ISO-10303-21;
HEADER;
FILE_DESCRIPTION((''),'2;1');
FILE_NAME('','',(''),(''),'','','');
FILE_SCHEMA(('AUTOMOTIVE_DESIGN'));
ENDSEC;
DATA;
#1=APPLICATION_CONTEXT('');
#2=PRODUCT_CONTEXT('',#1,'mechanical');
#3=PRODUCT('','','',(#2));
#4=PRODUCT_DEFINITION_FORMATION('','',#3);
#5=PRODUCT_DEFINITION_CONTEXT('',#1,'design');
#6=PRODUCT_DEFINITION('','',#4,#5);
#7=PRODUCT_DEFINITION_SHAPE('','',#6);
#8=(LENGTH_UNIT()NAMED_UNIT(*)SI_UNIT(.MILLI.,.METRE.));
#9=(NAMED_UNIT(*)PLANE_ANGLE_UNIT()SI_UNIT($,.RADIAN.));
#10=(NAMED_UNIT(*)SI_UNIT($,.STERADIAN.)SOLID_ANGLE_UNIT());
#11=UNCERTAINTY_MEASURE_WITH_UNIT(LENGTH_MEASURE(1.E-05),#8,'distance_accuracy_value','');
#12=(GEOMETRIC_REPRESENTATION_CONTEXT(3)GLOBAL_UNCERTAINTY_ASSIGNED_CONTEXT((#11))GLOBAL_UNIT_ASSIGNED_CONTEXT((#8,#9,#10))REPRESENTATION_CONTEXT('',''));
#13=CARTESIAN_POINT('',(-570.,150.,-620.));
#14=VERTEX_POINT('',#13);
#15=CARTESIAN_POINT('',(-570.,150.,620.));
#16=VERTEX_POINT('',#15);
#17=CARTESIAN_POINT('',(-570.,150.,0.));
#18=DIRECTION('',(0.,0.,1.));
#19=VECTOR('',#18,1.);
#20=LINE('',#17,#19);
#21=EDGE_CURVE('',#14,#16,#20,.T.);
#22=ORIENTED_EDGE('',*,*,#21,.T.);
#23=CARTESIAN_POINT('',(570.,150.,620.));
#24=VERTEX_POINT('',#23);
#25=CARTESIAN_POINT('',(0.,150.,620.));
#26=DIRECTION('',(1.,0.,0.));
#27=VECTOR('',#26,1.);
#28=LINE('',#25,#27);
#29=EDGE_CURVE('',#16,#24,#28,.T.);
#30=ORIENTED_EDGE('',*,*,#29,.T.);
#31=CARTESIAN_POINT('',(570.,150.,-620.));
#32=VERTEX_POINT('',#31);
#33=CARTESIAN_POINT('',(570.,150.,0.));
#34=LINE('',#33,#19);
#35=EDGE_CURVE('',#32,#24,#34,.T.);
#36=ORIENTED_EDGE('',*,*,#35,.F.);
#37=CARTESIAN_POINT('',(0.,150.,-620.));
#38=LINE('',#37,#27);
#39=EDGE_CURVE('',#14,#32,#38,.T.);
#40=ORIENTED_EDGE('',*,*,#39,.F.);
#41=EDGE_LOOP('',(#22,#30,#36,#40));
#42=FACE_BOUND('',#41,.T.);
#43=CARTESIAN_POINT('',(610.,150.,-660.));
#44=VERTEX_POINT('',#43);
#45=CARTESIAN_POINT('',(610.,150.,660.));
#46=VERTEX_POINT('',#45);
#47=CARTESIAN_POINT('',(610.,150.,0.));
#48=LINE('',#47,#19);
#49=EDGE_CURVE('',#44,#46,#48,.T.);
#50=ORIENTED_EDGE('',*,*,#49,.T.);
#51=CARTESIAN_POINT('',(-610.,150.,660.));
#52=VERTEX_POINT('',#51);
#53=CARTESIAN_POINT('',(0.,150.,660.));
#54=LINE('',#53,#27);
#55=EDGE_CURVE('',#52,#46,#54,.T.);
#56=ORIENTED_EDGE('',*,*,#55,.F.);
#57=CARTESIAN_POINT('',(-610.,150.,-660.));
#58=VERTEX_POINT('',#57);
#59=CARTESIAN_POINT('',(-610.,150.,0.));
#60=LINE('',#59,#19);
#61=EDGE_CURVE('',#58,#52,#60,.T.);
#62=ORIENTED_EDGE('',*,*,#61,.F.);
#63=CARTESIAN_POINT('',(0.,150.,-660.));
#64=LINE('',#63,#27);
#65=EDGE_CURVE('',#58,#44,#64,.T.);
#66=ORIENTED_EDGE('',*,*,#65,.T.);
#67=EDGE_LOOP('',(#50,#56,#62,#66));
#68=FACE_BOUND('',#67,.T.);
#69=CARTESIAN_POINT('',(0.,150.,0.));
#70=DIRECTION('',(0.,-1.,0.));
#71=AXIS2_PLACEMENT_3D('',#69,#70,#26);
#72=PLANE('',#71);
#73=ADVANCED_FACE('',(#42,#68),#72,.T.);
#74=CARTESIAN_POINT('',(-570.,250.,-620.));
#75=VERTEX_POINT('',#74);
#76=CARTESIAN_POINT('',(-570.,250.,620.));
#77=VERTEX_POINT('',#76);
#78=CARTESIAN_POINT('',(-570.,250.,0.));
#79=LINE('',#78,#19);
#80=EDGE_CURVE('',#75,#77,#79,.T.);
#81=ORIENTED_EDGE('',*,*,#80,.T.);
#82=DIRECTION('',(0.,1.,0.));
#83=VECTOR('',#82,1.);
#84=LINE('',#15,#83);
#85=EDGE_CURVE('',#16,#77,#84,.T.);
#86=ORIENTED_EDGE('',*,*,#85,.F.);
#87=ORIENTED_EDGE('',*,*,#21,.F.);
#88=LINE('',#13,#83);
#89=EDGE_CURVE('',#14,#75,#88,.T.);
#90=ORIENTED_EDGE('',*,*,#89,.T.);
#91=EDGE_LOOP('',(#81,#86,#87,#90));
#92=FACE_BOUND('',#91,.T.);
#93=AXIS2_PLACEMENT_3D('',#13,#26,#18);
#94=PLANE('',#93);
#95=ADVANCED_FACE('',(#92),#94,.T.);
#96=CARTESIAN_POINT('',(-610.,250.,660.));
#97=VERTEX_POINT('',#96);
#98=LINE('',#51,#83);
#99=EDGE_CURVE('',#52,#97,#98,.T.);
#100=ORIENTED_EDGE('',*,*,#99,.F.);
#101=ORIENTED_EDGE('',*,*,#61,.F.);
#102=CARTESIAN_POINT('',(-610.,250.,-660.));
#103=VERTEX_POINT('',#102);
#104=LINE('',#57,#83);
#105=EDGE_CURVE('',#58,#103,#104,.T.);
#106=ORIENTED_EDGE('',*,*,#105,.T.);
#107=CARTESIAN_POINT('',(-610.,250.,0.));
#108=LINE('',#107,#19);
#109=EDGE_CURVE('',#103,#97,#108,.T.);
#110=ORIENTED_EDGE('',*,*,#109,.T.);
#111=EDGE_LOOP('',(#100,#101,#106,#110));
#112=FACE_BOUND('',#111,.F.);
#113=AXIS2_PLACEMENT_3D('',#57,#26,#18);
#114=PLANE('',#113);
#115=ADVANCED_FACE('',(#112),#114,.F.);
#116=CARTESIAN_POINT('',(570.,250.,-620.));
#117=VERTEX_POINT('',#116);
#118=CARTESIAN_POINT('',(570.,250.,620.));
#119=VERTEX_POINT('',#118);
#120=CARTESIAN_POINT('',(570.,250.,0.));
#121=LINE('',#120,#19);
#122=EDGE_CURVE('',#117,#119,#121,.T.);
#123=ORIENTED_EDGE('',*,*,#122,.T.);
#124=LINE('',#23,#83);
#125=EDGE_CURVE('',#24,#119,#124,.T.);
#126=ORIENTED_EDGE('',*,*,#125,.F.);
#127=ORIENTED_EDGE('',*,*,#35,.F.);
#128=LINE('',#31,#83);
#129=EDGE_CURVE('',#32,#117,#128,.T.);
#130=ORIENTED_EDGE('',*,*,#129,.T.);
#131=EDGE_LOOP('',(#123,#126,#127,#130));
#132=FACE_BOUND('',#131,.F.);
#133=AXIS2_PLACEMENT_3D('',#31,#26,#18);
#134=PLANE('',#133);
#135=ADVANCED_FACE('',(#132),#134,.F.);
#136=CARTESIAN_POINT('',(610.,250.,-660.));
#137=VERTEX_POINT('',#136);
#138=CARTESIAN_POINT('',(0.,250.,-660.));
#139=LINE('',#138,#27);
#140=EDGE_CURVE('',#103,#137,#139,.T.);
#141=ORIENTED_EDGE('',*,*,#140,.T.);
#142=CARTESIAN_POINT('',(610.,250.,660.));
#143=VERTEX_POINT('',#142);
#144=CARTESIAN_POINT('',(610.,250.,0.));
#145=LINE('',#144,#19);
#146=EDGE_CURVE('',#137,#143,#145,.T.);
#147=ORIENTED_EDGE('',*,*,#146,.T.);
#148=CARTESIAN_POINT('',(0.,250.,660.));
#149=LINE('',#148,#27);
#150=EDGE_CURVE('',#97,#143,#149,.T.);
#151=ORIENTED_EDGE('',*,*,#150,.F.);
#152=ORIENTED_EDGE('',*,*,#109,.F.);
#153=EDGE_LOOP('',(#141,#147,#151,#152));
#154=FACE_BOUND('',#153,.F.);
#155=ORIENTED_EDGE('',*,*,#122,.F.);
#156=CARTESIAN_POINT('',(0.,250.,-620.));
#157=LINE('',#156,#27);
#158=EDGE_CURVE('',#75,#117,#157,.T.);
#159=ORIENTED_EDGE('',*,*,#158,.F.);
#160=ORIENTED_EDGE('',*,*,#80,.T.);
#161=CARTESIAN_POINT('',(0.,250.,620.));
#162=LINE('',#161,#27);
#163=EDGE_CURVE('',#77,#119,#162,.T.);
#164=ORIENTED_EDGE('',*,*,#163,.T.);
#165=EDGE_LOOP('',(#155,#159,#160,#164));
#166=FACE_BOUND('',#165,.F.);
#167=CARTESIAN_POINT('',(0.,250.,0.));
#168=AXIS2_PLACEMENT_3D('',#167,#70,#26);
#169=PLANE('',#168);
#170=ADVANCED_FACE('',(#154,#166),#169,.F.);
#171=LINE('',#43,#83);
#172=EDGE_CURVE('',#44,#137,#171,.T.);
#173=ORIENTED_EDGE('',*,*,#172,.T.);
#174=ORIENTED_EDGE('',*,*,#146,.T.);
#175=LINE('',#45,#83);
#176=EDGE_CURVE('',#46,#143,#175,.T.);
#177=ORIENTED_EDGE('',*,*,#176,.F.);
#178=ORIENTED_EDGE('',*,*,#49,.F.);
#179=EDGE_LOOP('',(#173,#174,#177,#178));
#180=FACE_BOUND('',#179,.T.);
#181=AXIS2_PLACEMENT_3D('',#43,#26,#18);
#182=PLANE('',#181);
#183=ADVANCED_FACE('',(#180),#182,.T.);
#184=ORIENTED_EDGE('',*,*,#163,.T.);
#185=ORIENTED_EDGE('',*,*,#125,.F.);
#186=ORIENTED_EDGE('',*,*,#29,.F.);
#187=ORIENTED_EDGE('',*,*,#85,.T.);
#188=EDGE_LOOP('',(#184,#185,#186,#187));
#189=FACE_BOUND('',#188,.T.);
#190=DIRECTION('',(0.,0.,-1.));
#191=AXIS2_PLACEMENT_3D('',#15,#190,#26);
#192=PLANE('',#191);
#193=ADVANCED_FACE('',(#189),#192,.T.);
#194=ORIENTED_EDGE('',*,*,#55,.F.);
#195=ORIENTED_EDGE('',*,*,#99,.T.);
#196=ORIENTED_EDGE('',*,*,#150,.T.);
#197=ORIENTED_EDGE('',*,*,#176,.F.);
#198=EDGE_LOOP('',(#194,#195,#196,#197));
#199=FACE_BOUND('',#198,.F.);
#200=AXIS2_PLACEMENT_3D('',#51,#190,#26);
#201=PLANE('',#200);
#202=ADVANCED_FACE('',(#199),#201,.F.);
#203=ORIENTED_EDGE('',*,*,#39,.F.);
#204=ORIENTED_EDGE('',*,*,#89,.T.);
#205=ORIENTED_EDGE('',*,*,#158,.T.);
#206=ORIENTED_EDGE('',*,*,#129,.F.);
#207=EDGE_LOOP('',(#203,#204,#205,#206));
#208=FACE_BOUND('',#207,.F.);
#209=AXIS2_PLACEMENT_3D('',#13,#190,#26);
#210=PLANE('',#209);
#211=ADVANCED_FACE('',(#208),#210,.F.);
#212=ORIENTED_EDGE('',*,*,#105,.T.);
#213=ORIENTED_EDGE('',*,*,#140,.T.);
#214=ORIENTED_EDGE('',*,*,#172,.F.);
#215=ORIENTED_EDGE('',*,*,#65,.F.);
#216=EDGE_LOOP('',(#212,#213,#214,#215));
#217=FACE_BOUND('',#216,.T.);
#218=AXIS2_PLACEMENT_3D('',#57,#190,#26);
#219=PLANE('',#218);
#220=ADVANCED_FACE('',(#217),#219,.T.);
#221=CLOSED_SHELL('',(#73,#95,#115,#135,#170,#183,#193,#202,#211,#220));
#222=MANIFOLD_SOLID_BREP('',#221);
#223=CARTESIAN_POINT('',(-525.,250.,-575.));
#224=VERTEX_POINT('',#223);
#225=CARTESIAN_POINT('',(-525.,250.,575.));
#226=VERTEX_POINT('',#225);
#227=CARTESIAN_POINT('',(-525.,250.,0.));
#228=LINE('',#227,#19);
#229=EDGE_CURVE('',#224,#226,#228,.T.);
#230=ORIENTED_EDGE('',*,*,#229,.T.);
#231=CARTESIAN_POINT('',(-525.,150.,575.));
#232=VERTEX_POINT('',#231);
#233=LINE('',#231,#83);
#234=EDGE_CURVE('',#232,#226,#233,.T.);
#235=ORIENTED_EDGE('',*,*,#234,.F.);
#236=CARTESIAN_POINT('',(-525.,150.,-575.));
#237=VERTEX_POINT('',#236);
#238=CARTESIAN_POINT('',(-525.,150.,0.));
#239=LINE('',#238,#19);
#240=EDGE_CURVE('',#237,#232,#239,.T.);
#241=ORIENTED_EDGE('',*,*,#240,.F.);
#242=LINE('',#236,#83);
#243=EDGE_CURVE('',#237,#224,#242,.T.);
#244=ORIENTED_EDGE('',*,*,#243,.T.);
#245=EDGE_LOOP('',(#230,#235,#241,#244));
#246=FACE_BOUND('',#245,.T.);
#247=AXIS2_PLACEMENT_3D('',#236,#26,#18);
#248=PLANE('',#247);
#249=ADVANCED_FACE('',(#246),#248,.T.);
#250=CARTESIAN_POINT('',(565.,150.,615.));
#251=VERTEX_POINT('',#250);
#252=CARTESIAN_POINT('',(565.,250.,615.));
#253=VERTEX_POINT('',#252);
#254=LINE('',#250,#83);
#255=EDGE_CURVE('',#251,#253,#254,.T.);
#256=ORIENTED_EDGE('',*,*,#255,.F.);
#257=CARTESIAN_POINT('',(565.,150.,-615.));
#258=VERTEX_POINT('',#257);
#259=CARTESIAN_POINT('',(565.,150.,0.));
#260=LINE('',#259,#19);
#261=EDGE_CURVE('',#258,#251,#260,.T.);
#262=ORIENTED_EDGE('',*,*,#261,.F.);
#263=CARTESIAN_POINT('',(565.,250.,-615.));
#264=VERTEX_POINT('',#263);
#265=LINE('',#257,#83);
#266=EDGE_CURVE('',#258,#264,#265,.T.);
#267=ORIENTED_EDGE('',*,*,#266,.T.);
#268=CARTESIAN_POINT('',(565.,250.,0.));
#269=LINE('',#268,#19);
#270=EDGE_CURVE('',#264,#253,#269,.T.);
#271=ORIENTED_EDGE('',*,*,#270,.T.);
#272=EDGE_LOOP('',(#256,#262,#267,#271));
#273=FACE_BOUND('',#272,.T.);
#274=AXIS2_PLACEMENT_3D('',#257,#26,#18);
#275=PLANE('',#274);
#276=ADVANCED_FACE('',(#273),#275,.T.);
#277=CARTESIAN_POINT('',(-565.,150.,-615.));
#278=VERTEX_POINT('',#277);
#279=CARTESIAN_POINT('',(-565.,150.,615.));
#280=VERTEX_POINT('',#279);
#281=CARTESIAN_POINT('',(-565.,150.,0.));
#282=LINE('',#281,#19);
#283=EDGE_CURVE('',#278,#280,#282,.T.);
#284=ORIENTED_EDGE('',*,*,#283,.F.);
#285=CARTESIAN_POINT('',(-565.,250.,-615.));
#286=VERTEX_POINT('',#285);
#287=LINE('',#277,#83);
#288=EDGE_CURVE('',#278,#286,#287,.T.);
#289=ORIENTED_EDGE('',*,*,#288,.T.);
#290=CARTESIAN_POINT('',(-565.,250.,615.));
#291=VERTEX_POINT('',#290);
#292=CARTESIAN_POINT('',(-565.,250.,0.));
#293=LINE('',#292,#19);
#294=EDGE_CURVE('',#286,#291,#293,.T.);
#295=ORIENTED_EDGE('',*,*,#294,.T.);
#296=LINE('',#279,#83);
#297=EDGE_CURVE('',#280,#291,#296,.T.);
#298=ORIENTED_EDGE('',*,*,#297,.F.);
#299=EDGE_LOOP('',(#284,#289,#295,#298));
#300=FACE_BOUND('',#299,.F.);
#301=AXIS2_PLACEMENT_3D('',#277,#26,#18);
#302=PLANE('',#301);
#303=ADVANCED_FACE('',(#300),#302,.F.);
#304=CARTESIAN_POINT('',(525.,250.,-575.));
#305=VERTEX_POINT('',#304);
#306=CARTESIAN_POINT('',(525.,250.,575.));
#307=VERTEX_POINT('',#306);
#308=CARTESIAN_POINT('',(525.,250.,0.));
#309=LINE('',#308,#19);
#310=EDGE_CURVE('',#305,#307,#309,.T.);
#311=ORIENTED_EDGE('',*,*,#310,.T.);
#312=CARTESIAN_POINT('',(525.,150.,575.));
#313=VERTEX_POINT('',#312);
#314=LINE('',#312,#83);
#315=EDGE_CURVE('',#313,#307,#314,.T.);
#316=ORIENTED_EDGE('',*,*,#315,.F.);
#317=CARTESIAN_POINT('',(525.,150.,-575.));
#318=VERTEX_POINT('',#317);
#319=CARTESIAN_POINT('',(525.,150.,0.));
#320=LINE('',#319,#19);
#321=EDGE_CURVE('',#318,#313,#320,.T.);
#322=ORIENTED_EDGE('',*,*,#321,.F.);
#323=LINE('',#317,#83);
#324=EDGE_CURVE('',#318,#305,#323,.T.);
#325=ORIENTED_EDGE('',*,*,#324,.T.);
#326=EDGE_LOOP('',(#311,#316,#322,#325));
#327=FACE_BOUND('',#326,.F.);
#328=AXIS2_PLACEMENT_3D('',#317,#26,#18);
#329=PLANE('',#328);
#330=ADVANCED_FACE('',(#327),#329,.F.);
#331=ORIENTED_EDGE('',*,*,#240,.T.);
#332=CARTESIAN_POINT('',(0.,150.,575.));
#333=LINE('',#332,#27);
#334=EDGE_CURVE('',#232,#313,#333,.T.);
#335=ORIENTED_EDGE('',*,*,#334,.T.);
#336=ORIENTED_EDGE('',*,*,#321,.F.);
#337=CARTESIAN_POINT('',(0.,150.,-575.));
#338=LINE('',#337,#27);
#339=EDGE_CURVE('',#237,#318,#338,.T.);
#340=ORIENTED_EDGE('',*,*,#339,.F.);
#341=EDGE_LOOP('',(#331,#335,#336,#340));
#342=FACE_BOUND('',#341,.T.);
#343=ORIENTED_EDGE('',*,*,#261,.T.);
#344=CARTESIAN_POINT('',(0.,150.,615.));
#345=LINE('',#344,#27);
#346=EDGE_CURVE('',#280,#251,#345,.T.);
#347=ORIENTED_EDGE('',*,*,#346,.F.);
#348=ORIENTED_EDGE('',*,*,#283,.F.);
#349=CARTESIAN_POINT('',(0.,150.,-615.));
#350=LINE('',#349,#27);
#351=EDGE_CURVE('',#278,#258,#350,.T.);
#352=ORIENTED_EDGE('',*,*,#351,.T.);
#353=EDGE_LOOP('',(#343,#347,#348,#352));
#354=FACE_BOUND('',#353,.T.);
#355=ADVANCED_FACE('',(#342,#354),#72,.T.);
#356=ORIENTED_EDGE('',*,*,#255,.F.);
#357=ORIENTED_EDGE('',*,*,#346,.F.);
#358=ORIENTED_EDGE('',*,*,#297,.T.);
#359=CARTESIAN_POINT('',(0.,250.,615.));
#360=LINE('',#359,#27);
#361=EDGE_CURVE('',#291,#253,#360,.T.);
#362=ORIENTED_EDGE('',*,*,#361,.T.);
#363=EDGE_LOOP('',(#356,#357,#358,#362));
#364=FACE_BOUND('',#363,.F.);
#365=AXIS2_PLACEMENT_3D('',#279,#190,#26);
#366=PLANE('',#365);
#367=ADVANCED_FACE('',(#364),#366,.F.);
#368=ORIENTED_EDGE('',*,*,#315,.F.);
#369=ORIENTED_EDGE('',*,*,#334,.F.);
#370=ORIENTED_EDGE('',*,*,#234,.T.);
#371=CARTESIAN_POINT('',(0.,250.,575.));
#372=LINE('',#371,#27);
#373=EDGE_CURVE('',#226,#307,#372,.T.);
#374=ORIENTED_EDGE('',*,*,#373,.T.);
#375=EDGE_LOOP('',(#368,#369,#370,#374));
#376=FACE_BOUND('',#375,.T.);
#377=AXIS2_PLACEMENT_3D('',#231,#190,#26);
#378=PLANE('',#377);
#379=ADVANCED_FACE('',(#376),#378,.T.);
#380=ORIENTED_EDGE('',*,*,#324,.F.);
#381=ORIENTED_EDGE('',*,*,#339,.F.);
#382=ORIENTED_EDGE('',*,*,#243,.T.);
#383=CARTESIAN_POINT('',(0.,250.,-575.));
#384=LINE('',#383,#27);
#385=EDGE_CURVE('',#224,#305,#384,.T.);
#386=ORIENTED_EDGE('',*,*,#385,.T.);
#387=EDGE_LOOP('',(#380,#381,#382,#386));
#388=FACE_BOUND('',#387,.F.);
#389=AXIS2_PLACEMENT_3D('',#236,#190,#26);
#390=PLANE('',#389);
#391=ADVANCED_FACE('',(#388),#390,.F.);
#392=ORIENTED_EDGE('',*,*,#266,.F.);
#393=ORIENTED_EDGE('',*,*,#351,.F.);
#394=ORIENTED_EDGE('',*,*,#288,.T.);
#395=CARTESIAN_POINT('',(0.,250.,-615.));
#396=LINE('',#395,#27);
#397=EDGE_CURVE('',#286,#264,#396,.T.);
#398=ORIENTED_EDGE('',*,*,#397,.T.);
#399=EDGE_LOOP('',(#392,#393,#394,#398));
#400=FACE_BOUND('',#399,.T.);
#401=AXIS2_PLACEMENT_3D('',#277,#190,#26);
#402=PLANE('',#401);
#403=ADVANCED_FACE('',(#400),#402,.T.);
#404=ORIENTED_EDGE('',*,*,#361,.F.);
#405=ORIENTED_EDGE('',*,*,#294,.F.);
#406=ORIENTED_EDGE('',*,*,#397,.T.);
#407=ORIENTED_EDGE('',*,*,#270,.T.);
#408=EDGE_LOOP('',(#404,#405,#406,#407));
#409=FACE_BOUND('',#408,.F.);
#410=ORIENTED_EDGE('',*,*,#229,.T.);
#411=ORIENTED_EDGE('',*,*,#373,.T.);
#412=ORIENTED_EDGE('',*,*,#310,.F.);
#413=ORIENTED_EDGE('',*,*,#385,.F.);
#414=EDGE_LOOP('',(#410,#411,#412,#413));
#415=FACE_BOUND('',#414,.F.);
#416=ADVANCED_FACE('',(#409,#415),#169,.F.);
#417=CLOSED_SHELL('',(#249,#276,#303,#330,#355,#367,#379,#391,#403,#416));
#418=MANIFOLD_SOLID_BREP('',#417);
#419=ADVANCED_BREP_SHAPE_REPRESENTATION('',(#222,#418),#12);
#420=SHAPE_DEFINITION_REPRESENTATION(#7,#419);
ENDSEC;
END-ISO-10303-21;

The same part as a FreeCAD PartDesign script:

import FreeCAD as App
import Part
import Sketcher
from FreeCAD import Vector
Q = App.Units.Quantity

doc = App.newDocument("Part")
body = doc.addObject("PartDesign::Body", "Body")

sketch1 = body.newObject("Sketcher::SketchObject", "Sketch")
sketch1.AttachmentSupport = (doc.getObject("XZ_Plane"), [""])
sketch1.MapMode = "FlatFace"
sketch1.AttachmentOffset = App.Placement(Vector(0, 0, -150), App.Rotation())
sketch1.addGeometry([
    Part.LineSegment(Vector(-565, 615, 0), Vector(-565, -615, 0)),
    Part.LineSegment(Vector(-565, -615, 0), Vector(565, -615, 0)),
    Part.LineSegment(Vector(565, -615, 0), Vector(565, 615, 0)),
    Part.LineSegment(Vector(565, 615, 0), Vector(-565, 615, 0)),
    Part.LineSegment(Vector(525, -575, 0), Vector(-525, -575, 0)),
    Part.LineSegment(Vector(-525, -575, 0), Vector(-525, 575, 0)),
    Part.LineSegment(Vector(-525, 575, 0), Vector(525, 575, 0)),
    Part.LineSegment(Vector(525, 575, 0), Vector(525, -575, 0)),
], False)
sketch1.addConstraint([
    Sketcher.Constraint("Coincident", 0, 2, 1, 1),
    Sketcher.Constraint("Coincident", 1, 2, 2, 1),
    Sketcher.Constraint("Coincident", 2, 2, 3, 1),
    Sketcher.Constraint("Coincident", 3, 2, 0, 1),
    Sketcher.Constraint("Coincident", 4, 2, 5, 1),
    Sketcher.Constraint("Coincident", 5, 2, 6, 1),
    Sketcher.Constraint("Coincident", 6, 2, 7, 1),
    Sketcher.Constraint("Coincident", 7, 2, 4, 1),
    Sketcher.Constraint("Vertical", 0),
    Sketcher.Constraint("Horizontal", 1),
    Sketcher.Constraint("Vertical", 2),
    Sketcher.Constraint("Horizontal", 3),
    Sketcher.Constraint("Horizontal", 4),
    Sketcher.Constraint("Vertical", 5),
    Sketcher.Constraint("Horizontal", 6),
    Sketcher.Constraint("Vertical", 7),
    Sketcher.Constraint("Symmetric", 0, 2, 2, 2, -1, 1),
    Sketcher.Constraint("Symmetric", 4, 2, 6, 2, -1, 1),
    Sketcher.Constraint("DistanceX", 1, 1, 1, 2, Q("1130 mm")),
    Sketcher.Constraint("DistanceX", 4, 2, 4, 1, Q("1050 mm")),
    Sketcher.Constraint("DistanceY", 0, 2, 0, 1, Q("1230 mm")),
    Sketcher.Constraint("DistanceY", 5, 1, 5, 2, Q("1150 mm")),
])
pad1 = body.newObject("PartDesign::Pad", "Pad")
pad1.Profile = sketch1
pad1.Length = 100
pad1.Reversed = True
body2 = doc.addObject("PartDesign::Body", "Body001")

sketch2 = body2.newObject("Sketcher::SketchObject", "Sketch001")
sketch2.AttachmentSupport = (doc.getObject("XZ_Plane001"), [""])
sketch2.MapMode = "FlatFace"
sketch2.AttachmentOffset = App.Placement(Vector(0, 0, -150), App.Rotation())
sketch2.addGeometry([
    Part.LineSegment(Vector(-610, 660, 0), Vector(-610, -660, 0)),
    Part.LineSegment(Vector(-610, -660, 0), Vector(610, -660, 0)),
    Part.LineSegment(Vector(610, -660, 0), Vector(610, 660, 0)),
    Part.LineSegment(Vector(610, 660, 0), Vector(-610, 660, 0)),
    Part.LineSegment(Vector(570, -620, 0), Vector(-570, -620, 0)),
    Part.LineSegment(Vector(-570, -620, 0), Vector(-570, 620, 0)),
    Part.LineSegment(Vector(-570, 620, 0), Vector(570, 620, 0)),
    Part.LineSegment(Vector(570, 620, 0), Vector(570, -620, 0)),
], False)
sketch2.addConstraint([
    Sketcher.Constraint("Coincident", 0, 2, 1, 1),
    Sketcher.Constraint("Coincident", 1, 2, 2, 1),
    Sketcher.Constraint("Coincident", 2, 2, 3, 1),
    Sketcher.Constraint("Coincident", 3, 2, 0, 1),
    Sketcher.Constraint("Coincident", 4, 2, 5, 1),
    Sketcher.Constraint("Coincident", 5, 2, 6, 1),
    Sketcher.Constraint("Coincident", 6, 2, 7, 1),
    Sketcher.Constraint("Coincident", 7, 2, 4, 1),
    Sketcher.Constraint("Vertical", 0),
    Sketcher.Constraint("Horizontal", 1),
    Sketcher.Constraint("Vertical", 2),
    Sketcher.Constraint("Horizontal", 3),
    Sketcher.Constraint("Horizontal", 4),
    Sketcher.Constraint("Vertical", 5),
    Sketcher.Constraint("Horizontal", 6),
    Sketcher.Constraint("Vertical", 7),
    Sketcher.Constraint("Symmetric", 0, 2, 2, 2, -1, 1),
    Sketcher.Constraint("Symmetric", 4, 2, 6, 2, -1, 1),
    Sketcher.Constraint("DistanceX", 1, 1, 1, 2, Q("1220 mm")),
    Sketcher.Constraint("DistanceX", 4, 2, 4, 1, Q("1140 mm")),
    Sketcher.Constraint("DistanceY", 0, 2, 0, 1, Q("1320 mm")),
    Sketcher.Constraint("DistanceY", 5, 1, 5, 2, Q("1240 mm")),
])
pad2 = body2.newObject("PartDesign::Pad", "Pad001")
pad2.Profile = sketch2
pad2.Length = 100
pad2.Reversed = True

doc.recompute()
